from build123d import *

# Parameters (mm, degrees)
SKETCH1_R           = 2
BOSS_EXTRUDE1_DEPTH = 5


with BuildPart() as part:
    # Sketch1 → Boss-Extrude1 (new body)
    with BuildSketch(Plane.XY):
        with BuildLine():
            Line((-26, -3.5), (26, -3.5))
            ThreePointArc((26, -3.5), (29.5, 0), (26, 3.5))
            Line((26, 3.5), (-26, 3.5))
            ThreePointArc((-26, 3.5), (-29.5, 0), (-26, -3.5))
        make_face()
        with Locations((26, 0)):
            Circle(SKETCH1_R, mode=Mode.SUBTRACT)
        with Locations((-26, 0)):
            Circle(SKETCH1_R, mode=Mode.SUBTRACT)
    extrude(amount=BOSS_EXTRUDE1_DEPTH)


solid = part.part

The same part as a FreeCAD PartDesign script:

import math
import FreeCAD as App
import Part
import Sketcher

doc = App.newDocument("Part")
body = doc.addObject("PartDesign::Body", "Body")

sketch1 = body.newObject("Sketcher::SketchObject", "Sketch")
sketch1.AttachmentSupport = (doc.getObject("XY_Plane"), [""])
sketch1.MapMode = "FlatFace"
sketch1.addGeometry([
    Part.LineSegment(App.Vector(-26, -3.5, 0), App.Vector(26, -3.5, 0)),
    Part.ArcOfCircle(Part.Circle(App.Vector(26, 0, 0), App.Vector(0, 0, 1), 3.5), math.radians(-90), math.radians(90)),
    Part.LineSegment(App.Vector(26, 3.5, 0), App.Vector(-26, 3.5, 0)),
    Part.ArcOfCircle(Part.Circle(App.Vector(-26, 0, 0), App.Vector(0, 0, 1), 3.5), math.radians(90), math.radians(270)),
    Part.Circle(App.Vector(-26, 0, 0), App.Vector(0, 0, 1), 2),
    Part.Circle(App.Vector(26, 0, 0), App.Vector(0, 0, 1), 2),
], False)
sketch1.addConstraint([
    Sketcher.Constraint("Tangent", 0, 2, 1, 1),
    Sketcher.Constraint("Tangent", 1, 2, 2, 1),
    Sketcher.Constraint("Tangent", 2, 2, 3, 1),
    Sketcher.Constraint("Tangent", 3, 2, 0, 1),
    Sketcher.Constraint("Horizontal", 0),
    Sketcher.Constraint("Horizontal", 2),
    Sketcher.Constraint("Coincident", 4, 3, 3, 3),
    Sketcher.Constraint("Coincident", 5, 3, 1, 3),
    Sketcher.Constraint("Equal", 4, 5),
    Sketcher.Constraint("Symmetric", 1, 3, 3, 3, -1, 1),
    Sketcher.Constraint("Diameter", 4, 4.0),
    Sketcher.Constraint("Radius", 1, 3.5),
    Sketcher.Constraint("DistanceX", 0, 1, 0, 2, 52.0),
])
pad1 = body.newObject("PartDesign::Pad", "Pad")
pad1.Profile = sketch1
pad1.Length = 5

doc.recompute()
